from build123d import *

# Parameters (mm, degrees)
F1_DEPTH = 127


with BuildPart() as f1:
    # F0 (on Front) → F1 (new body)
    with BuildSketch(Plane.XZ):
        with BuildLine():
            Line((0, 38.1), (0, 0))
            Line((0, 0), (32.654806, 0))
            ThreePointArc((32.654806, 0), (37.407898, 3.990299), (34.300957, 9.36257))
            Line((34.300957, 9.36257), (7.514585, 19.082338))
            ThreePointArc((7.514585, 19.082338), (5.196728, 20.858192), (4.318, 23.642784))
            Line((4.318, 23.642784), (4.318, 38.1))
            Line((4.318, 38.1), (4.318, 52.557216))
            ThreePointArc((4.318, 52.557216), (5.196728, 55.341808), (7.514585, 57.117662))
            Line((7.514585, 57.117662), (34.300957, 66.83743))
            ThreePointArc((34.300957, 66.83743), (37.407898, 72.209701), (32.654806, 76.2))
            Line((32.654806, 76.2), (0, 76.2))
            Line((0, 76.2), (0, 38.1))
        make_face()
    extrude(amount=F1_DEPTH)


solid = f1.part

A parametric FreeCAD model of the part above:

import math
import FreeCAD as App
import Part
import Sketcher

V = App.Vector
Q = App.Units.Quantity

doc = App.newDocument("Part")
params = doc.addObject("Spreadsheet::Sheet", "Params")
for row, (alias, value) in enumerate([
    ("sketch1_height", "3 in"),
    ("sketch1_radius", "0.19 in"),
    ("sketch1_radius2", "0.1910001 in"),
    ("pad1_length", "5 in"),
], start=1):
    params.set(f"A{row}", alias)
    params.set(f"B{row}", "=" + value)
    params.setAlias(f"B{row}", alias)

body = doc.addObject("PartDesign::Body", "Body")

# Sketch on XZ plane
sketch1 = body.newObject("Sketcher::SketchObject", "Sketch")
sketch1.AttachmentSupport = (doc.getObject("XZ_Plane"), [""])
sketch1.MapMode = "FlatFace"
sketch1.addGeometry(Part.LineSegment(V(0, 0, 0), V(32.7, 0, 0)), False)
sketch1.addGeometry(Part.ArcOfCircle(Part.Circle(V(32.7, 4.8, 0), V(0, 0, 1), 4.8), math.radians(-90), math.radians(70)), False)
sketch1.addGeometry(Part.LineSegment(V(34.3, 9.4, 0), V(7.5, 19.1, 0)), False)
sketch1.addGeometry(Part.ArcOfCircle(Part.Circle(V(9.2, 23.6, 0), V(0, 0, 1), 4.9), math.radians(-180), math.radians(-110)), False)
sketch1.addGeometry(Part.LineSegment(V(4.3, 23.6, 0), V(4.3, 52.6, 0)), False)
sketch1.addGeometry(Part.ArcOfCircle(Part.Circle(V(9.2, 52.6, 0), V(0, 0, 1), 4.9), math.radians(110), math.radians(180)), False)
sketch1.addGeometry(Part.LineSegment(V(7.5, 57.1, 0), V(34.3, 66.8, 0)), False)
sketch1.addGeometry(Part.ArcOfCircle(Part.Circle(V(32.7, 71.4, 0), V(0, 0, 1), 4.8), math.radians(-70), math.radians(90)), False)
sketch1.addGeometry(Part.LineSegment(V(32.7, 76.2, 0), V(0, 76.2, 0)), False)
sketch1.addGeometry(Part.LineSegment(V(0, 76.2, 0), V(0, 0, 0)), False)
sketch1.addConstraint(Sketcher.Constraint("Tangent", 0, 2, 1, 1))
sketch1.addConstraint(Sketcher.Constraint("Tangent", 1, 2, 2, 1))
sketch1.addConstraint(Sketcher.Constraint("Tangent", 2, 2, 3, 2))
sketch1.addConstraint(Sketcher.Constraint("Tangent", 3, 1, 4, 1))
sketch1.addConstraint(Sketcher.Constraint("Tangent", 4, 2, 5, 2))
sketch1.addConstraint(Sketcher.Constraint("Tangent", 5, 1, 6, 1))
sketch1.addConstraint(Sketcher.Constraint("Tangent", 6, 2, 7, 1))
sketch1.addConstraint(Sketcher.Constraint("Tangent", 7, 2, 8, 1))
sketch1.addConstraint(Sketcher.Constraint("Coincident", 8, 2, 9, 1))
sketch1.addConstraint(Sketcher.Constraint("Coincident", 9, 2, 0, 1))
sketch1.addConstraint(Sketcher.Constraint("Horizontal", 0))
sketch1.addConstraint(Sketcher.Constraint("Vertical", 4))
sketch1.addConstraint(Sketcher.Constraint("Horizontal", 8))
sketch1.addConstraint(Sketcher.Constraint("Vertical", 9))
sketch1.addConstraint(Sketcher.Constraint("Coincident", 9, 2, -1, 1))
sketch1.addConstraint(Sketcher.Constraint("Equal", 3, 5))
sketch1.addConstraint(Sketcher.Constraint("Equal", 1, 7))
sketch1.addConstraint(Sketcher.Constraint("Vertical", 1, 3, 7, 3))
sketch1.addConstraint(Sketcher.Constraint("Vertical", 2, 2, 5, 1))
sketch1.addConstraint(Sketcher.Constraint("DistanceY", 9, 2, 9, 1, Q("3 in")))
sketch1.addConstraint(Sketcher.Constraint("Radius", 1, Q("0.19 in")))
sketch1.addConstraint(Sketcher.Constraint("Radius", 3, Q("0.1910001 in")))
sketch1.addConstraint(Sketcher.Constraint("DistanceX", -1, 1, 3, 1, Q("0.17 in")))
sketch1.addConstraint(Sketcher.Constraint("DistanceY", 4, 1, 4, 2, Q("28.914432 mm")))
sketch1.addConstraint(Sketcher.Constraint("DistanceX", 0, 1, 0, 2, Q("32.654806 mm")))
sketch1.setExpression("Constraints[19]", "Params.sketch1_height")
sketch1.setExpression("Constraints[20]", "Params.sketch1_radius")
sketch1.setExpression("Constraints[21]", "Params.sketch1_radius2")
pad1 = body.newObject("PartDesign::Pad", "Pad")
pad1.Profile = sketch1
pad1.setExpression("Length", "Params.pad1_length")

doc.recompute()
